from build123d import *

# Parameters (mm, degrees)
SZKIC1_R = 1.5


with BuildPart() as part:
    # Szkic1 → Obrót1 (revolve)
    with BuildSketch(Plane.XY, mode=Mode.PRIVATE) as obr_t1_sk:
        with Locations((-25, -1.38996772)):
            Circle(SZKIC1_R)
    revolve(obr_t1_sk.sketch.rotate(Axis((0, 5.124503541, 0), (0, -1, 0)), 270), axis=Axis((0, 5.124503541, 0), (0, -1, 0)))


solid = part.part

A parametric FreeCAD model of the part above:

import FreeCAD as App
import Part
import Sketcher
from FreeCAD import Vector
Q = App.Units.Quantity

doc = App.newDocument("Part")
body = doc.addObject("PartDesign::Body", "Body")

# Sketch on XY plane
sketch1 = body.newObject("Sketcher::SketchObject", "Sketch")
sketch1.AttachmentSupport = (doc.getObject("XY_Plane"), [""])
sketch1.MapMode = "FlatFace"
sketch1.addGeometry(Part.Circle(Vector(-25, -1.4, 0), Vector(0, 0, 1), 1.5), False)
sketch1.addConstraint(Sketcher.Constraint("Diameter", 0, Q("3 mm")))
sketch1.addConstraint(Sketcher.Constraint("DistanceX", 0, 3, -1, 1, Q("25 mm")))
sketch1.addConstraint(Sketcher.Constraint("DistanceY", 0, 3, -1, 1, Q("1.389968 mm")))
revolution = body.newObject("PartDesign::Revolution", "Revolution")
revolution.Profile = sketch1
revolution.ReferenceAxis = (sketch1, ["V_Axis"])
revolution.Angle = 360

doc.recompute()
